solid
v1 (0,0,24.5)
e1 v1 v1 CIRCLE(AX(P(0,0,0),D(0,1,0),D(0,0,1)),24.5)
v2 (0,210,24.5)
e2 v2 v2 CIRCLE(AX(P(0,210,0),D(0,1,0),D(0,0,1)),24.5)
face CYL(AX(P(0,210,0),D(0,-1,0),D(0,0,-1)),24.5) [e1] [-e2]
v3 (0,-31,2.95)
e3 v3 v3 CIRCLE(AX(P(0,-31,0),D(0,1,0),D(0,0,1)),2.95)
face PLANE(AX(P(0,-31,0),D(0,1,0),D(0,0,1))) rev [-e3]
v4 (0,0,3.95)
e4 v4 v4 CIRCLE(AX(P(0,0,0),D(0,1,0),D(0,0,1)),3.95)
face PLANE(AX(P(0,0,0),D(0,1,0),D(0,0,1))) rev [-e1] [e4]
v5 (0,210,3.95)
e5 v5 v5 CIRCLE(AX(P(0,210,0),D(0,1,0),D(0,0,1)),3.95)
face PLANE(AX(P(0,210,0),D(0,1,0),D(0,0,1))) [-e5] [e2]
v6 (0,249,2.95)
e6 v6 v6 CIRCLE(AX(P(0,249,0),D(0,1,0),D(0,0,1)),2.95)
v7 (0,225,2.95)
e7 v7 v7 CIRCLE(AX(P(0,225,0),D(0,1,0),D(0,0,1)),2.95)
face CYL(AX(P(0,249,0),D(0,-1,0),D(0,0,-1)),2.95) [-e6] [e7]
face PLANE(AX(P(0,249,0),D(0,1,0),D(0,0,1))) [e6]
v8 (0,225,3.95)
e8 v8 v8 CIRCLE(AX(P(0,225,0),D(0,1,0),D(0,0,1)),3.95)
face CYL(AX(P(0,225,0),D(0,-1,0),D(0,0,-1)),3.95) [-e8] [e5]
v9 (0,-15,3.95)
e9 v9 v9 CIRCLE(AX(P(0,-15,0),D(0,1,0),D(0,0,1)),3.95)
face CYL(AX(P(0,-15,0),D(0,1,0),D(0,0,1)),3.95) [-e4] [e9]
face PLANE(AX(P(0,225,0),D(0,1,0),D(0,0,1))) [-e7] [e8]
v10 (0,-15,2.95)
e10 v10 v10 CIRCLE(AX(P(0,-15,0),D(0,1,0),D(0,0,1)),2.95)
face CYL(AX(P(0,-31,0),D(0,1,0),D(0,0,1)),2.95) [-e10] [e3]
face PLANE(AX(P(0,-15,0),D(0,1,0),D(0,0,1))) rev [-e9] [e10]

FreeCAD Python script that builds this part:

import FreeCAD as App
import Part
import Sketcher
from FreeCAD import Vector

doc = App.newDocument("Part")
params = doc.addObject("Spreadsheet::Sheet", "Params")
for row, (alias, value) in enumerate([
    ("sketch1_diameter", "49 mm"),
    ("pad1_length", "210 mm"),
    ("sketch2_diameter", "7.9 mm"),
    ("pad2_length", "15 mm"),
    ("sketch3_diameter", "5.9 mm"),
    ("pad3_length", "16 mm"),
    ("sketch4_diameter", "7.9 mm"),
    ("pad4_length", "15 mm"),
    ("sketch5_diameter", "5.9 mm"),
    ("pad5_length", "24 mm"),
], start=1):
    params.set(f"A{row}", alias)
    params.set(f"B{row}", "=" + value)
    params.setAlias(f"B{row}", alias)

body = doc.addObject("PartDesign::Body", "Body")

# Sketch on XZ plane
sketch1 = doc.addObject("Sketcher::SketchObject", "Sketch")
body.addObject(sketch1)
sketch1.AttachmentSupport = (doc.XZ_Plane, [""])
sketch1.MapMode = "FlatFace"
sketch1.addGeometry(Part.Circle(Vector(0, 0, 0), Vector(0, 0, 1), 24), False)
sketch1.addConstraint(Sketcher.Constraint("Coincident", 0, 3, -1, 1))
sketch1.addConstraint(Sketcher.Constraint("Diameter", 0, 49.0))
sketch1.setExpression("Constraints[1]", "Params.sketch1_diameter")
pad1 = doc.addObject("PartDesign::Pad", "Pad")
body.addObject(pad1)
pad1.Profile = sketch1
pad1.setExpression("Length", "Params.pad1_length")
pad1.Reversed = True

# Sketch on XZ plane
sketch2 = doc.addObject("Sketcher::SketchObject", "Sketch001")
body.addObject(sketch2)
sketch2.AttachmentSupport = (doc.XZ_Plane, [""])
sketch2.MapMode = "FlatFace"
sketch2.addGeometry(Part.Circle(Vector(0, 0, 0), Vector(0, 0, 1), 4), False)
sketch2.addConstraint(Sketcher.Constraint("Coincident", 0, 3, -1, 1))
sketch2.addConstraint(Sketcher.Constraint("Diameter", 0, 7.9))
sketch2.setExpression("Constraints[1]", "Params.sketch2_diameter")
pad2 = doc.addObject("PartDesign::Pad", "Pad001")
body.addObject(pad2)
pad2.Profile = sketch2
pad2.setExpression("Length", "Params.pad2_length")

# Sketch on XZ plane
sketch3 = doc.addObject("Sketcher::SketchObject", "Sketch002")
body.addObject(sketch3)
sketch3.AttachmentSupport = (doc.XZ_Plane, [""])
sketch3.MapMode = "FlatFace"
sketch3.AttachmentOffset = App.Placement(Vector(0, 0, 15), App.Rotation())
sketch3.addGeometry(Part.Circle(Vector(0, 0, 0), Vector(0, 0, 1), 3), False)
sketch3.addConstraint(Sketcher.Constraint("Coincident", 0, 3, -1, 1))
sketch3.addConstraint(Sketcher.Constraint("Diameter", 0, 5.9))
sketch3.setExpression("Constraints[1]", "Params.sketch3_diameter")
pad3 = doc.addObject("PartDesign::Pad", "Pad002")
body.addObject(pad3)
pad3.Profile = sketch3
pad3.setExpression("Length", "Params.pad3_length")

# Sketch on XZ plane
sketch4 = doc.addObject("Sketcher::SketchObject", "Sketch003")
body.addObject(sketch4)
sketch4.AttachmentSupport = (doc.XZ_Plane, [""])
sketch4.MapMode = "FlatFace"
sketch4.AttachmentOffset = App.Placement(Vector(0, 0, -225), App.Rotation())
sketch4.addGeometry(Part.Circle(Vector(0, 0, 0), Vector(0, 0, 1), 4), False)
sketch4.addConstraint(Sketcher.Constraint("Coincident", 0, 3, -1, 1))
sketch4.addConstraint(Sketcher.Constraint("Diameter", 0, 7.9))
sketch4.setExpression("Constraints[1]", "Params.sketch4_diameter")
pad4 = doc.addObject("PartDesign::Pad", "Pad003")
body.addObject(pad4)
pad4.Profile = sketch4
pad4.setExpression("Length", "Params.pad4_length")

# Sketch on XZ plane
sketch5 = doc.addObject("Sketcher::SketchObject", "Sketch004")
body.addObject(sketch5)
sketch5.AttachmentSupport = (doc.XZ_Plane, [""])
sketch5.MapMode = "FlatFace"
sketch5.AttachmentOffset = App.Placement(Vector(0, 0, -249), App.Rotation())
sketch5.addGeometry(Part.Circle(Vector(0, 0, 0), Vector(0, 0, 1), 3), False)
sketch5.addConstraint(Sketcher.Constraint("Coincident", 0, 3, -1, 1))
sketch5.addConstraint(Sketcher.Constraint("Diameter", 0, 5.9))
sketch5.setExpression("Constraints[1]", "Params.sketch5_diameter")
pad5 = doc.addObject("PartDesign::Pad", "Pad004")
body.addObject(pad5)
pad5.Profile = sketch5
pad5.setExpression("Length", "Params.pad5_length")

doc.recompute()
